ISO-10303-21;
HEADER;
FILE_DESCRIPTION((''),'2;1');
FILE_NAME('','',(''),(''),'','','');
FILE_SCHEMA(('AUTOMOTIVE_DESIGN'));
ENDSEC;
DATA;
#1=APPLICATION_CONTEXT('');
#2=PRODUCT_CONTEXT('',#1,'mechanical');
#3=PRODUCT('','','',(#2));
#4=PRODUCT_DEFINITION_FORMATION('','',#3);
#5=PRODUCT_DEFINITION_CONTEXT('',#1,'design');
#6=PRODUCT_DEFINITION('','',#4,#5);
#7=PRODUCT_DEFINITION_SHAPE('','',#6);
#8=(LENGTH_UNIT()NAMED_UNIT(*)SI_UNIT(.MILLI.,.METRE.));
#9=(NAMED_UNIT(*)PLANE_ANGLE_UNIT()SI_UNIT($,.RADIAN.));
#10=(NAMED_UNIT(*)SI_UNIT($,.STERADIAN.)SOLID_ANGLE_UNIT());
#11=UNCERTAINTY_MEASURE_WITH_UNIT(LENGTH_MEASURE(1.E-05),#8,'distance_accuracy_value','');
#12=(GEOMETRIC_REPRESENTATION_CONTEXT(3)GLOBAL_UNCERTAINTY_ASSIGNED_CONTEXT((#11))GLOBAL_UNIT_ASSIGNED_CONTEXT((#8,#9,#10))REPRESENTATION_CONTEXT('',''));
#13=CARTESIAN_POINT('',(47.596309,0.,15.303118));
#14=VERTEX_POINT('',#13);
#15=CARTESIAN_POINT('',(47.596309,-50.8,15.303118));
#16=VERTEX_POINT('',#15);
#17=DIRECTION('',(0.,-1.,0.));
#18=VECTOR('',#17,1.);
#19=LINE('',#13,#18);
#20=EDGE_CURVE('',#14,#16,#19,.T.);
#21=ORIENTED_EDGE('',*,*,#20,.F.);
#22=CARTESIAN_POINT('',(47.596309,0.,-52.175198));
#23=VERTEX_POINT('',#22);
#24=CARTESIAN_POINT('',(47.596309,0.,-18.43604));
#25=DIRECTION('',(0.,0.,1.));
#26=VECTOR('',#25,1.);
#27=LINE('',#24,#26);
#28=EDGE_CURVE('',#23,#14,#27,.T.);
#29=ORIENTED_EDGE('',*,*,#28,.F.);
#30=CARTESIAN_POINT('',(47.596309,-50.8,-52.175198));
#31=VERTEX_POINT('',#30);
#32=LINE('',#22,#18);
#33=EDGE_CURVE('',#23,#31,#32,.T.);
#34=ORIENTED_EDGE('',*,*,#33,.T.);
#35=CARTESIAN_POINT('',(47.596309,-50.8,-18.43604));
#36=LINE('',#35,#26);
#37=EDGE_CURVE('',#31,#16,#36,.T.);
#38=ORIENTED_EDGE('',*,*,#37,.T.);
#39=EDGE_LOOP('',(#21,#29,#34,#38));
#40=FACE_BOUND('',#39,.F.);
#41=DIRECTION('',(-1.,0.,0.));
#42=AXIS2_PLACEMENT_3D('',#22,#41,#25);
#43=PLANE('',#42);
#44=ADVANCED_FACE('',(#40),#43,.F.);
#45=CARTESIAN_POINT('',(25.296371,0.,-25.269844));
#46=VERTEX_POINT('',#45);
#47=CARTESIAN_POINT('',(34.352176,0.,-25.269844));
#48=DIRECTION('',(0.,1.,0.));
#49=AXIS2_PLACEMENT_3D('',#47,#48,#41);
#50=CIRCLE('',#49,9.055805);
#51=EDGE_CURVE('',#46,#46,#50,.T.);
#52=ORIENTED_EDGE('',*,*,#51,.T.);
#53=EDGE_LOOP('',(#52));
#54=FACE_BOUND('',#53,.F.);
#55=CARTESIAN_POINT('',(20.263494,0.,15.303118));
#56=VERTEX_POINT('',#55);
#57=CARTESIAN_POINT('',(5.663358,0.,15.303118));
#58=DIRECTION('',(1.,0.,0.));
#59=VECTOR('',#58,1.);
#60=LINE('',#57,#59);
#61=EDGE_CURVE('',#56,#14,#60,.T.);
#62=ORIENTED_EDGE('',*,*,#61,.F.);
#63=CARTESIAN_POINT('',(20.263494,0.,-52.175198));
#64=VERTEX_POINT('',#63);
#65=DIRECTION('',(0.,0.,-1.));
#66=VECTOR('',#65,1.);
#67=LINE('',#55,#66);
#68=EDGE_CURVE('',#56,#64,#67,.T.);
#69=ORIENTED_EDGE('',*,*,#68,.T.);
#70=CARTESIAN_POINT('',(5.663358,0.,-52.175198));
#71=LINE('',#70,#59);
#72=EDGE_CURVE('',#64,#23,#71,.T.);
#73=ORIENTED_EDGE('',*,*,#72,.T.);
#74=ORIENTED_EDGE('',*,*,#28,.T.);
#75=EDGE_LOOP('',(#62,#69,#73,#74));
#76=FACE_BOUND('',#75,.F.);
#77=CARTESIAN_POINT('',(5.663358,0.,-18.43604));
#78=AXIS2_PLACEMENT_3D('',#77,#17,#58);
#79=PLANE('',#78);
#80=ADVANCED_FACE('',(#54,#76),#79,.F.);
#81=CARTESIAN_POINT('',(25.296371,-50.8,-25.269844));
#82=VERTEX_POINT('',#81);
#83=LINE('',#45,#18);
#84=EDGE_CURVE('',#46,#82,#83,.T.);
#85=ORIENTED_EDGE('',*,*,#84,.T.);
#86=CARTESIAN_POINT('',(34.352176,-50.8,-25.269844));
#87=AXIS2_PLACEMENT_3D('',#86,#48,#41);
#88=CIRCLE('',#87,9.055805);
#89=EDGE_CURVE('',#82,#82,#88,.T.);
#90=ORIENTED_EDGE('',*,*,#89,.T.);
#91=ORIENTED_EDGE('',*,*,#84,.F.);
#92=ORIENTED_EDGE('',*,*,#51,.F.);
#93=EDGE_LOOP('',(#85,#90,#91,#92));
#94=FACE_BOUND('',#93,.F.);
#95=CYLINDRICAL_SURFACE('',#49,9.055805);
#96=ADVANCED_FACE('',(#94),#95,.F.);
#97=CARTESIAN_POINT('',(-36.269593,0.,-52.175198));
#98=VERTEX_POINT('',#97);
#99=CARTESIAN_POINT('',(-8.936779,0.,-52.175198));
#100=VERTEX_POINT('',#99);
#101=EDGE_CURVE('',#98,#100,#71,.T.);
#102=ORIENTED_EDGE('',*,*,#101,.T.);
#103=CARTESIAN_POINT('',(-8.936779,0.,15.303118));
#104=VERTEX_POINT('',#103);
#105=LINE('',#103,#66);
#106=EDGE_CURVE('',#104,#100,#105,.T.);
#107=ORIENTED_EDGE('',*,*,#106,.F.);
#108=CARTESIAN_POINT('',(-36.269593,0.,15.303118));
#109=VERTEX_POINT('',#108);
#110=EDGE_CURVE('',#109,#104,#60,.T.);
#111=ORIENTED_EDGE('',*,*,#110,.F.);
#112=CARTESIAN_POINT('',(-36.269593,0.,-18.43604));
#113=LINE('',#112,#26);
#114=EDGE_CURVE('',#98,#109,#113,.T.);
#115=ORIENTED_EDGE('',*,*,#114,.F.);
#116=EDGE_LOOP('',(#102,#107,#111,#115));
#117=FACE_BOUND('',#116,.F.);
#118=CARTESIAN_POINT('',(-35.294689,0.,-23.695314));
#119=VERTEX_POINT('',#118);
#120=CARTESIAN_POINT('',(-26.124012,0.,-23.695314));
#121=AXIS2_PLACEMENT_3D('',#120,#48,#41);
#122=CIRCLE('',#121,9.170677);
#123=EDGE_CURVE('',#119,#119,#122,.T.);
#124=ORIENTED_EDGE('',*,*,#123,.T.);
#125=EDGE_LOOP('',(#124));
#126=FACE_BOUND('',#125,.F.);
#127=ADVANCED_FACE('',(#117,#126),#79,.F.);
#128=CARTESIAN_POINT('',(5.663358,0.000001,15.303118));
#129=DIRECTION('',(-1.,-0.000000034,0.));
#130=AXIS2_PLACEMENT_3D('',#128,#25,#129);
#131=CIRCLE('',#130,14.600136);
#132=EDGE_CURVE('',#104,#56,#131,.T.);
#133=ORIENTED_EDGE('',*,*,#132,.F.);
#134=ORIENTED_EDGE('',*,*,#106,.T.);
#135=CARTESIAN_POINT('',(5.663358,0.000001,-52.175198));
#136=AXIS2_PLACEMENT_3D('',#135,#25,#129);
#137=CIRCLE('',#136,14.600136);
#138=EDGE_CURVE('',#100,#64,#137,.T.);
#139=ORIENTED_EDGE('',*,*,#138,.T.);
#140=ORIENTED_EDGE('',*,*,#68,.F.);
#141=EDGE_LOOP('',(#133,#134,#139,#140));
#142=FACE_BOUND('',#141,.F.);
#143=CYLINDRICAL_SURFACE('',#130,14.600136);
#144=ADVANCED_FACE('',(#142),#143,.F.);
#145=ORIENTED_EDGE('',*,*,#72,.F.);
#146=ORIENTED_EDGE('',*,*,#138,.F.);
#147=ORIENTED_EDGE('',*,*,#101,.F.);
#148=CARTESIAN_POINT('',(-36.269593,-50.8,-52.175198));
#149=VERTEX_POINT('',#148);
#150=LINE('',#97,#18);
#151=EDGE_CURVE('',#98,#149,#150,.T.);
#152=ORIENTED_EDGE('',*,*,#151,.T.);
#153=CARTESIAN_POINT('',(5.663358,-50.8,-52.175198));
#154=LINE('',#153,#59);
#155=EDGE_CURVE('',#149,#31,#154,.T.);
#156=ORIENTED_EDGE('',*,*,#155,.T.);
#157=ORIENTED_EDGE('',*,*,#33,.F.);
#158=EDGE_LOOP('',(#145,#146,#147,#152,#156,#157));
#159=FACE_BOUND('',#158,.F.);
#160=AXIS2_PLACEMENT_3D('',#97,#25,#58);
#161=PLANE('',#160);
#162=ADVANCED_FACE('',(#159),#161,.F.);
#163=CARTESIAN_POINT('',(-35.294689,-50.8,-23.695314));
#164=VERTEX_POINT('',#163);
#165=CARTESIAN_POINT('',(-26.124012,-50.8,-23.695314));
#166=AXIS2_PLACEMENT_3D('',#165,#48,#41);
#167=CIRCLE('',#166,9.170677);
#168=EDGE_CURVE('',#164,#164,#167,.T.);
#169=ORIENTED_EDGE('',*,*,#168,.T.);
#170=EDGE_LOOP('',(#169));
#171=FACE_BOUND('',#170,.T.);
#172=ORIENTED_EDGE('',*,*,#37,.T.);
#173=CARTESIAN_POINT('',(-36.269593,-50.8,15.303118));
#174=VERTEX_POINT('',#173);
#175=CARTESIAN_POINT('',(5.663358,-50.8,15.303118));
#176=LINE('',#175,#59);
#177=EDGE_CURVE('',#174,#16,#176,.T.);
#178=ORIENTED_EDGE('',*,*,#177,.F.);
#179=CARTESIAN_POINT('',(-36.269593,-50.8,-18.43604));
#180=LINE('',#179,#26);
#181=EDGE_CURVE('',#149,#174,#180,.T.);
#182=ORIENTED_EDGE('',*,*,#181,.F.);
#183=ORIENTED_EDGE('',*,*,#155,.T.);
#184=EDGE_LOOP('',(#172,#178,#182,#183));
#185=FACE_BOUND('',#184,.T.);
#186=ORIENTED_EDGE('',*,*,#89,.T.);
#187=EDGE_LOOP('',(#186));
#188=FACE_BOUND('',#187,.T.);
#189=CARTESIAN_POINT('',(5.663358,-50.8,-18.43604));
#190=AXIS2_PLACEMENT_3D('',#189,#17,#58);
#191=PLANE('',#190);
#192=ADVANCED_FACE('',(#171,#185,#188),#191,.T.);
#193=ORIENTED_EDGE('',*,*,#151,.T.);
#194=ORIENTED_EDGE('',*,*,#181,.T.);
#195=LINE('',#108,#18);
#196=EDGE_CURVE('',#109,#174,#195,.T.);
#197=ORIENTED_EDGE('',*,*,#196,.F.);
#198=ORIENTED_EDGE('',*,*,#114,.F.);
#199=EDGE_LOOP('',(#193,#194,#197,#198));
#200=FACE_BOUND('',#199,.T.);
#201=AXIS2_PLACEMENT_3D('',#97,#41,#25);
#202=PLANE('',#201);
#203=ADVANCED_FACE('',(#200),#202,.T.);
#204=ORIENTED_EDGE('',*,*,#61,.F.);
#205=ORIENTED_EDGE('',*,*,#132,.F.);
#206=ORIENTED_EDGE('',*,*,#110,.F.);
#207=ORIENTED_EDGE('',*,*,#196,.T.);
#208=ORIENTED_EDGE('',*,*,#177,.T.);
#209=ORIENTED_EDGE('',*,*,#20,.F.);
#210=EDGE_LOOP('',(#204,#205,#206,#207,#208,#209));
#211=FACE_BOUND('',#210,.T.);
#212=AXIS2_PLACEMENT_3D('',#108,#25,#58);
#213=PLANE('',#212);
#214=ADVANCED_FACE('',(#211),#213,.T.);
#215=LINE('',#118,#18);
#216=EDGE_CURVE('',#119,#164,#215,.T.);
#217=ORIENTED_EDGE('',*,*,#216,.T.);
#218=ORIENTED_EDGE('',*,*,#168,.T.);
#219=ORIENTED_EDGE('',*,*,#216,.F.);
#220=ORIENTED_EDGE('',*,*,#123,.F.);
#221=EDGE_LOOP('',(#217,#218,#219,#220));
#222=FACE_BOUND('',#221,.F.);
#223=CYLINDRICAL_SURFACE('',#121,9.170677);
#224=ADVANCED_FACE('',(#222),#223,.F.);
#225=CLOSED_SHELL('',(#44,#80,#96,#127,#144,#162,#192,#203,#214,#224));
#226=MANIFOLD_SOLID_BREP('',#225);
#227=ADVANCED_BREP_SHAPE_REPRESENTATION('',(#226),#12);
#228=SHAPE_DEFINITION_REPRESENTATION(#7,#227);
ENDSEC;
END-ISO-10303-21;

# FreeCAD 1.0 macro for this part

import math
import FreeCAD as App
import Part
import Sketcher
Q = App.Units.Quantity

doc = App.newDocument("Part")
body = doc.addObject("PartDesign::Body", "Body")

sketch1 = body.newObject("Sketcher::SketchObject", "Sketch")
sketch1.AttachmentSupport = (doc.getObject("XZ_Plane"), [""])
sketch1.MapMode = "FlatFace"
sketch1.addGeometry([
    Part.LineSegment(App.Vector(-36, 15, 0), App.Vector(-36, -52, 0)),
    Part.LineSegment(App.Vector(-36, -52, 0), App.Vector(48, -52, 0)),
    Part.LineSegment(App.Vector(48, -52, 0), App.Vector(48, 15, 0)),
    Part.LineSegment(App.Vector(48, 15, 0), App.Vector(-36, 15, 0)),
], False)
sketch1.addConstraint([
    Sketcher.Constraint("Coincident", 0, 2, 1, 1),
    Sketcher.Constraint("Coincident", 1, 2, 2, 1),
    Sketcher.Constraint("Coincident", 2, 2, 3, 1),
    Sketcher.Constraint("Coincident", 3, 2, 0, 1),
    Sketcher.Constraint("Vertical", 0),
    Sketcher.Constraint("Horizontal", 1),
    Sketcher.Constraint("Vertical", 2),
    Sketcher.Constraint("Horizontal", 3),
    Sketcher.Constraint("DistanceY", 0, 2, -1, 1, Q("52.175198 mm")),
    Sketcher.Constraint("DistanceX", 1, 1, 1, 2, Q("83.865903 mm")),
    Sketcher.Constraint("DistanceY", 0, 2, 0, 1, Q("67.478316 mm")),
    Sketcher.Constraint("DistanceX", -1, 1, 1, 2, Q("47.596309 mm")),
])
pad1 = body.newObject("PartDesign::Pad", "Pad")
pad1.Profile = sketch1
pad1.Length = Q("2 in")

sketch2 = body.newObject("Sketcher::SketchObject", "Sketch001")
sketch2.AttachmentSupport = (doc.getObject("XY_Plane"), [""])
sketch2.MapMode = "FlatFace"
sketch2.AttachmentOffset = App.Placement(App.Vector(0, 0, 15.303118), App.Rotation())
sketch2.addGeometry([
    Part.ArcOfCircle(Part.Circle(App.Vector(6, 0, 0), App.Vector(0, 0, 1), 15), math.radians(-180), math.radians(0)),
    Part.LineSegment(App.Vector(20, 0, 0), App.Vector(-9, 0, 0)),
], False)
sketch2.addConstraint([
    Sketcher.Constraint("Coincident", 0, 1, 1, 2),
    Sketcher.Constraint("Coincident", 1, 1, 0, 2),
    Sketcher.Constraint("Horizontal", 1),
    Sketcher.Constraint("PointOnObject", 0, 3, -1),
    Sketcher.Constraint("PointOnObject", 0, 1, -1),
    Sketcher.Constraint("Radius", 0, Q("14.600136 mm")),
    Sketcher.Constraint("DistanceX", 0, 1, -1, 1, Q("8.936779 mm")),
])
pocket1 = body.newObject("PartDesign::Pocket", "Pocket")
pocket1.Profile = sketch2
pocket1.Length = Q("2.93 in")

sketch3 = body.newObject("Sketcher::SketchObject", "Sketch002")
sketch3.AttachmentSupport = (doc.getObject("XZ_Plane"), [""])
sketch3.MapMode = "FlatFace"
sketch3.addGeometry([
    Part.Circle(App.Vector(-26, -24, 0), App.Vector(0, 0, 1), 9),
    Part.Circle(App.Vector(34, -25, 0), App.Vector(0, 0, 1), 9),
], False)
sketch3.addConstraint([
    Sketcher.Constraint("Diameter", 1, Q("18.11161 mm")),
    Sketcher.Constraint("Diameter", 0, Q("18.341354 mm")),
    Sketcher.Constraint("DistanceY", 1, 3, 0, 3, Q("1.57453 mm")),
    Sketcher.Constraint("DistanceX", 0, 3, -1, 1, Q("26.124012 mm")),
    Sketcher.Constraint("DistanceY", 0, 3, -1, 1, Q("23.695314 mm")),
    Sketcher.Constraint("DistanceX", -1, 1, 1, 3, Q("34.352176 mm")),
])
pocket2 = body.newObject("PartDesign::Pocket", "Pocket001")
pocket2.Profile = sketch3
pocket2.Length = Q("2.57 in")
pocket2.Reversed = True

doc.recompute()
